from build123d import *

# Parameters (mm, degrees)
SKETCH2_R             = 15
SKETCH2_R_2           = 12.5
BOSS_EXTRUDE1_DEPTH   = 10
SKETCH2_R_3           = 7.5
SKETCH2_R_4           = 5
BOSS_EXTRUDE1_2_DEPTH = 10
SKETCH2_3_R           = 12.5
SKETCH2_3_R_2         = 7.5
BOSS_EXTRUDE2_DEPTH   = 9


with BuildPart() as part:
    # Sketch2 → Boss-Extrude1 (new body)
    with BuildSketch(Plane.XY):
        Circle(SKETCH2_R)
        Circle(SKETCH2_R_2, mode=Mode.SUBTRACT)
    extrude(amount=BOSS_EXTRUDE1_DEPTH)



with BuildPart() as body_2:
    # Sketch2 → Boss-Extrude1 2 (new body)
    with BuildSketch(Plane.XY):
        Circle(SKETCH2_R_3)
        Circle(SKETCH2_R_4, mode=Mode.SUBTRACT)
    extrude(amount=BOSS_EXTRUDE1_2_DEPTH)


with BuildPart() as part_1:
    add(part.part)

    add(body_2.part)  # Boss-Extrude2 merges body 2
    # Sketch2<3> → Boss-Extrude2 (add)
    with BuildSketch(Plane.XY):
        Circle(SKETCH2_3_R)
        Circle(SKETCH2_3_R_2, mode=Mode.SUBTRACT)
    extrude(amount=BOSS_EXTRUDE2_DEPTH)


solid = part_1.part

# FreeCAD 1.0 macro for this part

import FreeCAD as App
import Part
import Sketcher

doc = App.newDocument("Part")
params = doc.addObject("Spreadsheet::Sheet", "Params")
for row, (alias, value) in enumerate([
    ("sketch1_diameter", "30 mm"),
    ("sketch1_diameter2", "25 mm"),
    ("pad1_length", "10 mm"),
    ("sketch2_diameter", "15 mm"),
    ("sketch2_diameter2", "10 mm"),
    ("pad2_length", "10 mm"),
    ("sketch3_diameter", "25 mm"),
    ("sketch3_diameter2", "15 mm"),
    ("pad3_length", "9 mm"),
], start=1):
    params.set(f"A{row}", alias)
    params.set(f"B{row}", "=" + value)
    params.setAlias(f"B{row}", alias)

body = doc.addObject("PartDesign::Body", "Body")

# Sketch on XY plane
sketch1 = body.newObject("Sketcher::SketchObject", "Sketch")
sketch1.AttachmentSupport = (doc.getObject("XY_Plane"), [""])
sketch1.MapMode = "FlatFace"
sketch1.addGeometry([
    Part.Circle(App.Vector(0, 0, 0), App.Vector(0, 0, 1), 15),
    Part.Circle(App.Vector(0, 0, 0), App.Vector(0, 0, 1), 12.5),
], False)
sketch1.addConstraint([
    Sketcher.Constraint("Coincident", 0, 3, -1, 1),
    Sketcher.Constraint("Coincident", 1, 3, -1, 1),
    Sketcher.Constraint("Diameter", 0, 30.0),
    Sketcher.Constraint("Diameter", 1, 25.0),
])
sketch1.setExpression("Constraints[2]", "Params.sketch1_diameter")
sketch1.setExpression("Constraints[3]", "Params.sketch1_diameter2")
pad1 = body.newObject("PartDesign::Pad", "Pad")
pad1.Profile = sketch1
pad1.setExpression("Length", "Params.pad1_length")
body2 = doc.addObject("PartDesign::Body", "Body001")

# Sketch on XY plane
sketch2 = body2.newObject("Sketcher::SketchObject", "Sketch001")
sketch2.AttachmentSupport = (doc.getObject("XY_Plane001"), [""])
sketch2.MapMode = "FlatFace"
sketch2.addGeometry([
    Part.Circle(App.Vector(0, 0, 0), App.Vector(0, 0, 1), 7.5),
    Part.Circle(App.Vector(0, 0, 0), App.Vector(0, 0, 1), 5),
], False)
sketch2.addConstraint([
    Sketcher.Constraint("Coincident", 0, 3, -1, 1),
    Sketcher.Constraint("Coincident", 1, 3, -1, 1),
    Sketcher.Constraint("Diameter", 0, 15.0),
    Sketcher.Constraint("Diameter", 1, 10.0),
])
sketch2.setExpression("Constraints[2]", "Params.sketch2_diameter")
sketch2.setExpression("Constraints[3]", "Params.sketch2_diameter2")
pad2 = body2.newObject("PartDesign::Pad", "Pad001")
pad2.Profile = sketch2
pad2.setExpression("Length", "Params.pad2_length")
body.AllowCompound = True
doc.recompute()

boolean = body.newObject("PartDesign::Boolean", "Boolean")
boolean.Type = "Fuse"
boolean.addObjects([body2])

# Sketch on XY plane
sketch3 = body.newObject("Sketcher::SketchObject", "Sketch002")
sketch3.AttachmentSupport = (doc.getObject("XY_Plane"), [""])
sketch3.MapMode = "FlatFace"
sketch3.addGeometry([
    Part.Circle(App.Vector(0, 0, 0), App.Vector(0, 0, 1), 12.5),
    Part.Circle(App.Vector(0, 0, 0), App.Vector(0, 0, 1), 7.5),
], False)
sketch3.addConstraint([
    Sketcher.Constraint("Coincident", 0, 3, -1, 1),
    Sketcher.Constraint("Coincident", 1, 3, -1, 1),
    Sketcher.Constraint("Diameter", 0, 25.0),
    Sketcher.Constraint("Diameter", 1, 15.0),
])
sketch3.setExpression("Constraints[2]", "Params.sketch3_diameter")
sketch3.setExpression("Constraints[3]", "Params.sketch3_diameter2")
pad3 = body.newObject("PartDesign::Pad", "Pad002")
pad3.Profile = sketch3
pad3.setExpression("Length", "Params.pad3_length")

doc.recompute()
